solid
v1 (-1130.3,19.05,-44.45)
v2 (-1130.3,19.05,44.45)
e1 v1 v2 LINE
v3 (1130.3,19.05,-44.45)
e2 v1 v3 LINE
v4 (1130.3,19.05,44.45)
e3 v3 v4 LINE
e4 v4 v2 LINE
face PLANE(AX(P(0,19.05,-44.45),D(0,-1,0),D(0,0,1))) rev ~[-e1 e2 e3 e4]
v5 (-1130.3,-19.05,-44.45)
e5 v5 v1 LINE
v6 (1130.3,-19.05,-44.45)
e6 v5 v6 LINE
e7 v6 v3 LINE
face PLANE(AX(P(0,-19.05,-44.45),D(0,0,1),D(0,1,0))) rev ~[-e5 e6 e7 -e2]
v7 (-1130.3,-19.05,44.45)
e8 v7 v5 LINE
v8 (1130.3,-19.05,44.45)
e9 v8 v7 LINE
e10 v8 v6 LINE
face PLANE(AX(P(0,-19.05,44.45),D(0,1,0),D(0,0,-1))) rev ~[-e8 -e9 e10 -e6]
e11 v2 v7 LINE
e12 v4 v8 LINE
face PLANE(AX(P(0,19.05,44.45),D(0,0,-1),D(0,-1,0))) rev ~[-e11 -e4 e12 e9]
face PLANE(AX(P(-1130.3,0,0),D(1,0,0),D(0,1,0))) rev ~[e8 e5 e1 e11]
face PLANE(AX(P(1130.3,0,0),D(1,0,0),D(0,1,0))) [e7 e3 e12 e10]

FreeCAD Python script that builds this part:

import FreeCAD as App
import Part
import Sketcher

V = App.Vector
Q = App.Units.Quantity

doc = App.newDocument("Part")
params = doc.addObject("Spreadsheet::Sheet", "Params")
for row, (alias, value) in enumerate([
    ("sketch1_width", "1.5 in"),
    ("sketch1_height", "3.5 in"),
    ("pad1_length", "89 in"),
], start=1):
    params.set(f"A{row}", alias)
    params.set(f"B{row}", "=" + value)
    params.setAlias(f"B{row}", alias)

body = doc.addObject("PartDesign::Body", "Body")

# Sketch on YZ plane
sketch1 = body.newObject("Sketcher::SketchObject", "Sketch")
sketch1.AttachmentSupport = (doc.getObject("YZ_Plane"), [""])
sketch1.MapMode = "FlatFace"
sketch1.addGeometry([
    Part.LineSegment(V(-19, 44, 0), V(-19, -44, 0)),
    Part.LineSegment(V(-19, -44, 0), V(19, -44, 0)),
    Part.LineSegment(V(19, -44, 0), V(19, 44, 0)),
    Part.LineSegment(V(19, 44, 0), V(-19, 44, 0)),
], False)
sketch1.addConstraint([
    Sketcher.Constraint("Coincident", 0, 2, 1, 1),
    Sketcher.Constraint("Coincident", 1, 2, 2, 1),
    Sketcher.Constraint("Coincident", 2, 2, 3, 1),
    Sketcher.Constraint("Coincident", 3, 2, 0, 1),
    Sketcher.Constraint("Vertical", 0),
    Sketcher.Constraint("Horizontal", 1),
    Sketcher.Constraint("Vertical", 2),
    Sketcher.Constraint("Horizontal", 3),
    Sketcher.Constraint("Symmetric", 0, 2, 2, 2, -1, 1),
    Sketcher.Constraint("DistanceX", 1, 1, 1, 2, Q("1.5 in")),
    Sketcher.Constraint("DistanceY", 0, 2, 0, 1, Q("3.5 in")),
])
sketch1.setExpression("Constraints[9]", "Params.sketch1_width")
sketch1.setExpression("Constraints[10]", "Params.sketch1_height")
pad1 = body.newObject("PartDesign::Pad", "Pad")
pad1.Profile = sketch1
pad1.setExpression("Length", "Params.pad1_length")
pad1.Midplane = True

doc.recompute()
